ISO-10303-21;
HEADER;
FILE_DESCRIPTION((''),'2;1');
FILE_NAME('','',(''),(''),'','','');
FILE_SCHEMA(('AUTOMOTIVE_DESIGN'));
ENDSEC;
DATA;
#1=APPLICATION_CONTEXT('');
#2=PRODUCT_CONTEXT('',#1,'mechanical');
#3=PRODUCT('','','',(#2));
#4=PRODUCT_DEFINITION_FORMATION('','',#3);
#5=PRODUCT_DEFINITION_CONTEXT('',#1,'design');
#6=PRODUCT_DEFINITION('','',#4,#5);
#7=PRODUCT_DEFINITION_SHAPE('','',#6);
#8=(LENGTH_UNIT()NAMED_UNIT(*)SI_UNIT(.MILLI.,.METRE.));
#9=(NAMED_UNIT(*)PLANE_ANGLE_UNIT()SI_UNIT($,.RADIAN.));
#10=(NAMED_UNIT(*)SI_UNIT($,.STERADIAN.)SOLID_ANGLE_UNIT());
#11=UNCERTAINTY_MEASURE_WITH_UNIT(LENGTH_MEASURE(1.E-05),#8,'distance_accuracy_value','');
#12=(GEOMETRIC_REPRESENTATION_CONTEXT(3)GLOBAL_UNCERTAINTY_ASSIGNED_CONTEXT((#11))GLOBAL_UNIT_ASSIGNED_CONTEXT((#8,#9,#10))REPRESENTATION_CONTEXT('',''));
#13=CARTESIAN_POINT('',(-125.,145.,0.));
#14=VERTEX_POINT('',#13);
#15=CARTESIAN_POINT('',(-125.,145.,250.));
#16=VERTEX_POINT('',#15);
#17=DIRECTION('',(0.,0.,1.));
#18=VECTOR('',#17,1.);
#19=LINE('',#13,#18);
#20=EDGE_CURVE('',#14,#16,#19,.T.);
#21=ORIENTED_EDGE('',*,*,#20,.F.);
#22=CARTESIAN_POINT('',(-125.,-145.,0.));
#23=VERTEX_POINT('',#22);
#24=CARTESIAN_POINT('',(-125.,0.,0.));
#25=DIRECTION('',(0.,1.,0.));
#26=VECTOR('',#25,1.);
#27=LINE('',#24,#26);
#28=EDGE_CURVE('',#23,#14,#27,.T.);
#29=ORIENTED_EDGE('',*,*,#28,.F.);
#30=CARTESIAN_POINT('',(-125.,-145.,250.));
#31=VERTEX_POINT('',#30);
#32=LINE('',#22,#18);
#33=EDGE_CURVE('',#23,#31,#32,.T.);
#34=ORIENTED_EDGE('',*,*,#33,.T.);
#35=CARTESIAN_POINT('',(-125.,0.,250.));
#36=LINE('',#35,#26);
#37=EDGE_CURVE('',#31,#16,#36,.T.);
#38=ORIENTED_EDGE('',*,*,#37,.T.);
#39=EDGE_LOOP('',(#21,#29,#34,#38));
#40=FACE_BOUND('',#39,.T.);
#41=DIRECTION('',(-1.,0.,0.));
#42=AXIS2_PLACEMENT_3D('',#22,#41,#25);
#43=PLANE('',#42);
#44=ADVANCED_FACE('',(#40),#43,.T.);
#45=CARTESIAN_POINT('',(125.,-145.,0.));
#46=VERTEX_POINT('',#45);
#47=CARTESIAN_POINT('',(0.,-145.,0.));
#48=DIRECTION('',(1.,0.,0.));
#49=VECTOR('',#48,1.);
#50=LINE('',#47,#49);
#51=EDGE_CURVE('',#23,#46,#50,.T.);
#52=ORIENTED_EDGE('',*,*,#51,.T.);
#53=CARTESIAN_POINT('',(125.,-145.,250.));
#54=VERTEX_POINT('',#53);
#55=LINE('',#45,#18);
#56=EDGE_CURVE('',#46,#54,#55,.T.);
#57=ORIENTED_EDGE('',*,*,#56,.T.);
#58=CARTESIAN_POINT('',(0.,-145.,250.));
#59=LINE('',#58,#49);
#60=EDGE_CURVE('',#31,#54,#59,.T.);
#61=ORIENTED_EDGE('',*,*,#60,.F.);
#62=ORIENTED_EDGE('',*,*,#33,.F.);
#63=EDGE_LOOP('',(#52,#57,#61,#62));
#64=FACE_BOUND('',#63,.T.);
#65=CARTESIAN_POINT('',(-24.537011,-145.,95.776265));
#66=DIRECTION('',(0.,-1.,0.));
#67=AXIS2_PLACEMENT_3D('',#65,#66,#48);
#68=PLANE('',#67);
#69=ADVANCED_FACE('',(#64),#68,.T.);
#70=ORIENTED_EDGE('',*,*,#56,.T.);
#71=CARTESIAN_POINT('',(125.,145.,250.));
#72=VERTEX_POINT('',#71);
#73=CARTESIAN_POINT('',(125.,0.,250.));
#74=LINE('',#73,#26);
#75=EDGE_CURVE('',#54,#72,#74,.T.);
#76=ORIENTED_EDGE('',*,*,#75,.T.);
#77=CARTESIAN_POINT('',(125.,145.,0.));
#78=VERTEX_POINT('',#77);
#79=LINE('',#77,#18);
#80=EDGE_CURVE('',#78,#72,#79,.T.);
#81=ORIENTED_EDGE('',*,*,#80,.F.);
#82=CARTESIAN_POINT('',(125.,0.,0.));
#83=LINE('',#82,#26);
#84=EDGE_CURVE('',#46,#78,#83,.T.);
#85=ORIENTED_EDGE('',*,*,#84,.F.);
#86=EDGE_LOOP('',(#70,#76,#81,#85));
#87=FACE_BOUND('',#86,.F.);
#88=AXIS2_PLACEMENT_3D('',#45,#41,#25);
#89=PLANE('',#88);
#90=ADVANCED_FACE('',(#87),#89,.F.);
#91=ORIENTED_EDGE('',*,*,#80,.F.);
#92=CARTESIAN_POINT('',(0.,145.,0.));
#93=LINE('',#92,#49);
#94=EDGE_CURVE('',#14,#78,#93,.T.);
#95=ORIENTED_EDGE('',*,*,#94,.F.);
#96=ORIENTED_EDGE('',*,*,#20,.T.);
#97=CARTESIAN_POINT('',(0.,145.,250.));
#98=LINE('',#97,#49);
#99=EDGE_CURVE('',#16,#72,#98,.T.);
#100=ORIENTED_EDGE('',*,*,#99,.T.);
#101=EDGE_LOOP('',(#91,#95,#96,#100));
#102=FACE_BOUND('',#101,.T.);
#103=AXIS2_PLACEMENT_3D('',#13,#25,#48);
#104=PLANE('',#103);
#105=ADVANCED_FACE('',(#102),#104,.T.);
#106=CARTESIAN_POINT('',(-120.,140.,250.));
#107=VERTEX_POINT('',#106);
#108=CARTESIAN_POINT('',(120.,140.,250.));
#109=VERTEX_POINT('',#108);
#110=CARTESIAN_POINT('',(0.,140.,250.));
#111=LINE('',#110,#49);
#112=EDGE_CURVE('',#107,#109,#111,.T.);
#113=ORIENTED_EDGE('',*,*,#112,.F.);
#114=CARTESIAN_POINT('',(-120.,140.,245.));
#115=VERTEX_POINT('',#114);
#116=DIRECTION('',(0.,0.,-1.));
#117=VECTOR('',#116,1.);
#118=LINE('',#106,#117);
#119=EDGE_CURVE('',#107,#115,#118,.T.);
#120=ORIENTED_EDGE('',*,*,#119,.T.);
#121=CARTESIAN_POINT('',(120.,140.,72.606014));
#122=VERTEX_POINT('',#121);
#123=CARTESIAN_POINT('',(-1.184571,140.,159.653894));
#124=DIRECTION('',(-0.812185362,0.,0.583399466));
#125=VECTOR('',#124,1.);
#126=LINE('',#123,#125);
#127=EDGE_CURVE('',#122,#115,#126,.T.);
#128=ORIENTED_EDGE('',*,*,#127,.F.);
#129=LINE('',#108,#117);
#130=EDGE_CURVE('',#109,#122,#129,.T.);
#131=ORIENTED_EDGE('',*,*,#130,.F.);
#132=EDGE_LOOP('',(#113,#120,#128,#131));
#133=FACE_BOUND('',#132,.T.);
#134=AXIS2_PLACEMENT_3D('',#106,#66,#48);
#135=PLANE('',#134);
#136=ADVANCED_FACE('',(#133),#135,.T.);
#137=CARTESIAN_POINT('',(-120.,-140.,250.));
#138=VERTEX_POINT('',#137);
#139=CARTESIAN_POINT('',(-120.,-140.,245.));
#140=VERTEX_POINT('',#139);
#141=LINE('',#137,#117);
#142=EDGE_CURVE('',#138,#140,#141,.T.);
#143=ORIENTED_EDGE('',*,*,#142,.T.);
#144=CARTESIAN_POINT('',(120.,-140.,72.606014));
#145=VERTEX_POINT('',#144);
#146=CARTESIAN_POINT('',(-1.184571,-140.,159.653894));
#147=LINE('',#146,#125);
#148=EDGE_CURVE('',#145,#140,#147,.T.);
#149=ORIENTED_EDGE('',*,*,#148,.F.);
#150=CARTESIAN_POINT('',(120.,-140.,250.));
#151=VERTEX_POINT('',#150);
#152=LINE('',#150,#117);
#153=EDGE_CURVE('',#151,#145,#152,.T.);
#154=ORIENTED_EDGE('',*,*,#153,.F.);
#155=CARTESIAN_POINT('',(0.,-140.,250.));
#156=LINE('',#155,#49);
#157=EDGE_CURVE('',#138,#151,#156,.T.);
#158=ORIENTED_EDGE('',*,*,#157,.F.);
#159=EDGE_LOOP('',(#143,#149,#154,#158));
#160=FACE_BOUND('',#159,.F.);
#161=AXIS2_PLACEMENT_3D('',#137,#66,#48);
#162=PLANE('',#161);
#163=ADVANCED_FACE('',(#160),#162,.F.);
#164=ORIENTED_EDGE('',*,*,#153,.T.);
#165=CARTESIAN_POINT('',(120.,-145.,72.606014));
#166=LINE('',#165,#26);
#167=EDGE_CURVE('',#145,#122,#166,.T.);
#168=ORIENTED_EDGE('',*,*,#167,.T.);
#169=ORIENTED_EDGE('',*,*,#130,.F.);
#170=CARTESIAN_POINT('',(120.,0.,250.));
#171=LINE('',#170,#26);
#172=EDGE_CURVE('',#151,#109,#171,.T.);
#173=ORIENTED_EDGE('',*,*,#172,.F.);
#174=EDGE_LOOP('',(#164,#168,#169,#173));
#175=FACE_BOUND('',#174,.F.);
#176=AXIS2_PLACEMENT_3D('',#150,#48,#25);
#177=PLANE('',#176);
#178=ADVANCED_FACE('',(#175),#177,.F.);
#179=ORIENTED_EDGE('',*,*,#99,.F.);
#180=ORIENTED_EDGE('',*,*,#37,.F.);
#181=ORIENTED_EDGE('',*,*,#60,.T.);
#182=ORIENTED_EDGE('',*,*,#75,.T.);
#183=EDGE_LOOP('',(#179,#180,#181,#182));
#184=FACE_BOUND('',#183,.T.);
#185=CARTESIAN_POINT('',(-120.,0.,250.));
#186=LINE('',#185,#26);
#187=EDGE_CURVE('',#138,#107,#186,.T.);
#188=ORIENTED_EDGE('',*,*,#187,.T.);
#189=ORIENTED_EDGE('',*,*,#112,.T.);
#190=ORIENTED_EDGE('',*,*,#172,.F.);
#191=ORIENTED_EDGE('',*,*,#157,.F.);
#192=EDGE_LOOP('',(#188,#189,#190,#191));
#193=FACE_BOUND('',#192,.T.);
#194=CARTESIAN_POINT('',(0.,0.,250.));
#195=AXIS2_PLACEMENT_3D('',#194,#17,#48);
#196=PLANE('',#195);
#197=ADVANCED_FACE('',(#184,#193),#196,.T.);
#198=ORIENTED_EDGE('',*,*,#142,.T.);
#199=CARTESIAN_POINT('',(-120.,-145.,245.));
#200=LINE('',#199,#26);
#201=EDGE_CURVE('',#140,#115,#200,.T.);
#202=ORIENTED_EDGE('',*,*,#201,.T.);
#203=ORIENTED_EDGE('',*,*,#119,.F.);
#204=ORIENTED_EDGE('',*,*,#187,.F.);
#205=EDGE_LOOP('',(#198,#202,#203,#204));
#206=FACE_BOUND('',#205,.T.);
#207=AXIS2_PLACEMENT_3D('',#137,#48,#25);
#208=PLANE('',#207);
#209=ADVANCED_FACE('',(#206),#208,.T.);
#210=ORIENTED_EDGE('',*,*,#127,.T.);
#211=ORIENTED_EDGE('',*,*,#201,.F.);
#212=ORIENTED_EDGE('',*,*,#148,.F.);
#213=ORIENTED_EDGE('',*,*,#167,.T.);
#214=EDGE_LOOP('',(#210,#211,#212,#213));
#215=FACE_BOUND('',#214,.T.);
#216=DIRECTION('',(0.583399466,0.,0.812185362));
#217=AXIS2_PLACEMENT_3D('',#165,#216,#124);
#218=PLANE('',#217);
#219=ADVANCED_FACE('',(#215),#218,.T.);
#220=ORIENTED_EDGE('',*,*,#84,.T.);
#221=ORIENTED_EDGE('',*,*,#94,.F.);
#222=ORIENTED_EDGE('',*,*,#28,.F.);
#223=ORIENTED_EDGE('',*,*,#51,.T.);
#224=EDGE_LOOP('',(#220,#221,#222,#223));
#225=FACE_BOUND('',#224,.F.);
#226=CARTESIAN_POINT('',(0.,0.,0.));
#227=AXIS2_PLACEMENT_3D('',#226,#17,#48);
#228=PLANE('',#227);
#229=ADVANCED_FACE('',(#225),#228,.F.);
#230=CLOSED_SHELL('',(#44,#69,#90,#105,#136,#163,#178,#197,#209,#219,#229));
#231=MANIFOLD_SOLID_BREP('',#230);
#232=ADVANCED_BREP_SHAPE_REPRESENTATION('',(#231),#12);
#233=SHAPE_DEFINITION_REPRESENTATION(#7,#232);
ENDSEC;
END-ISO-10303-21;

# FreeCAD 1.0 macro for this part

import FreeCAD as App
import Part
import Sketcher
Q = App.Units.Quantity


def add_polygon(sketch, points):
    """Adds a closed chain of lines whose ends are joined by coincident constraints."""
    first, n = sketch.GeometryCount, len(points)
    for a, b in zip(points, points[1:] + points[:1]):
        sketch.addGeometry(Part.LineSegment(App.Vector(*a, 0), App.Vector(*b, 0)), False)
    for i in range(n):
        sketch.addConstraint(Sketcher.Constraint("Coincident", first + i, 2, first + (i + 1) % n, 1))

doc = App.newDocument("Part")
body = doc.addObject("PartDesign::Body", "Body")

# Sketch on XY plane
sketch1 = doc.addObject("Sketcher::SketchObject", "Sketch")
body.addObject(sketch1)
sketch1.AttachmentSupport = (doc.XY_Plane, [""])
sketch1.MapMode = "FlatFace"
add_polygon(sketch1, [(-125, 145), (-125, -145), (125, -145), (125, 145)])  # lines 0-3
sketch1.addConstraint(Sketcher.Constraint("Vertical", 0))
sketch1.addConstraint(Sketcher.Constraint("Horizontal", 1))
sketch1.addConstraint(Sketcher.Constraint("Vertical", 2))
sketch1.addConstraint(Sketcher.Constraint("Horizontal", 3))
sketch1.addConstraint(Sketcher.Constraint("Symmetric", 0, 2, 2, 2, -1, 1))
sketch1.addConstraint(Sketcher.Constraint("DistanceX", 1, 1, 1, 2, Q("250 mm")))
sketch1.addConstraint(Sketcher.Constraint("DistanceY", 0, 2, 0, 1, Q("290 mm")))
pad1 = doc.addObject("PartDesign::Pad", "Pad")
body.addObject(pad1)
pad1.Profile = sketch1
pad1.Length = 250

# Sketch on XY plane
sketch2 = doc.addObject("Sketcher::SketchObject", "Sketch001")
body.addObject(sketch2)
sketch2.AttachmentSupport = (doc.XY_Plane, [""])
sketch2.MapMode = "FlatFace"
sketch2.AttachmentOffset = App.Placement(App.Vector(0, 0, 250), App.Rotation())
add_polygon(sketch2, [(-120, 140), (-120, -140), (120, -140), (120, 140)])  # lines 0-3
sketch2.addConstraint(Sketcher.Constraint("Vertical", 0))
sketch2.addConstraint(Sketcher.Constraint("Horizontal", 1))
sketch2.addConstraint(Sketcher.Constraint("Vertical", 2))
sketch2.addConstraint(Sketcher.Constraint("Horizontal", 3))
sketch2.addConstraint(Sketcher.Constraint("Symmetric", 0, 2, 2, 2, -1, 1))
sketch2.addConstraint(Sketcher.Constraint("DistanceX", 1, 1, 1, 2, Q("240 mm")))
sketch2.addConstraint(Sketcher.Constraint("DistanceY", 0, 2, 0, 1, Q("280 mm")))
pocket1 = doc.addObject("PartDesign::Pocket", "Pocket")
body.addObject(pocket1)
pocket1.Profile = sketch2
pocket1.Length = 240

# Sketch on XZ plane
sketch3 = doc.addObject("Sketcher::SketchObject", "Sketch002")
body.addObject(sketch3)
sketch3.AttachmentSupport = (doc.XZ_Plane, [""])
sketch3.MapMode = "FlatFace"
sketch3.AttachmentOffset = App.Placement(App.Vector(0, 0, 145), App.Rotation())
add_polygon(sketch3, [(-120, 245), (-120, 5), (120, 5), (120, 73)])  # lines 0-3
sketch3.addConstraint(Sketcher.Constraint("Vertical", 0))
sketch3.addConstraint(Sketcher.Constraint("Horizontal", 1))
sketch3.addConstraint(Sketcher.Constraint("Vertical", 2))
sketch3.addConstraint(Sketcher.Constraint("Equal", 1, 0))
sketch3.addConstraint(Sketcher.Constraint("DistanceX", 1, 1, 1, 2, Q("240 mm")))
sketch3.addConstraint(Sketcher.Constraint("DistanceX", 0, 2, -1, 1, Q("120 mm")))
sketch3.addConstraint(Sketcher.Constraint("DistanceY", -1, 1, 0, 2, Q("5 mm")))
sketch3.addConstraint(Sketcher.Constraint("Angle", 3, Q("144.31 deg")))
pad2 = doc.addObject("PartDesign::Pad", "Pad001")
body.addObject(pad2)
pad2.Profile = sketch3
pad2.Length = 290
pad2.Reversed = True

doc.recompute()
